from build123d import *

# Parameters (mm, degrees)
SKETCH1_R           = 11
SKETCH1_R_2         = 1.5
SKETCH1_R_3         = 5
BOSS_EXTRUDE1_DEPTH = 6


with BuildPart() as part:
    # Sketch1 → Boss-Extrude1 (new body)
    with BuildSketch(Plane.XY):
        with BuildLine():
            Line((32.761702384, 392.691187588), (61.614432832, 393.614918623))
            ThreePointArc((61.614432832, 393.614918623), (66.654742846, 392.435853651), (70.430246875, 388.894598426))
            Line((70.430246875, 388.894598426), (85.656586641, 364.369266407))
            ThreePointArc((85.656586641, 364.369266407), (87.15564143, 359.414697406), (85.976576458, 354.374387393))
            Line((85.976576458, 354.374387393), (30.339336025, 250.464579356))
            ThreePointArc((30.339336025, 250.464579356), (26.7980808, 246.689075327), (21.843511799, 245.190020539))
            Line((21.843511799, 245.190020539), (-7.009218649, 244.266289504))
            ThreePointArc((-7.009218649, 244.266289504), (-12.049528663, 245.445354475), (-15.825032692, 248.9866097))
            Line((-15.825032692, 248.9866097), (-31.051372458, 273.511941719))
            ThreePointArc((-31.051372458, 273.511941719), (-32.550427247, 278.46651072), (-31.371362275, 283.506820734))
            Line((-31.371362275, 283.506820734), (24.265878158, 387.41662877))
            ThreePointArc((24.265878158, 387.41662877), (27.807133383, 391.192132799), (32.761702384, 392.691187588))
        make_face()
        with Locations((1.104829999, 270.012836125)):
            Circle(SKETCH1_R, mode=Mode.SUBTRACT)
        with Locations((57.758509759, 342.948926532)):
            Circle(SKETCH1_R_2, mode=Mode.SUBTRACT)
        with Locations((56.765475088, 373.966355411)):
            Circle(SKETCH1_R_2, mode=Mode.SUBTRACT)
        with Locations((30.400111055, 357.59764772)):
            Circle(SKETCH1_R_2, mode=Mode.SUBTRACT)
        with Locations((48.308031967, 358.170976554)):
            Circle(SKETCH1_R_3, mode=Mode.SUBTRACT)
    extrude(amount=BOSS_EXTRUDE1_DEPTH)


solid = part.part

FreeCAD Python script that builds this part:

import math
import FreeCAD as App
import Part
import Sketcher
from FreeCAD import Vector
Q = App.Units.Quantity

doc = App.newDocument("Part")
params = doc.addObject("Spreadsheet::Sheet", "Params")
for row, (alias, value) in enumerate([
    ("sketch1_diameter", "22 mm"),
    ("sketch1_diameter2", "3 mm"),
    ("sketch1_diameter3", "10 mm"),
    ("sketch1_radius", "10 mm"),
    ("pad1_length", "6 mm"),
], start=1):
    params.set(f"A{row}", alias)
    params.set(f"B{row}", "=" + value)
    params.setAlias(f"B{row}", alias)

body = doc.addObject("PartDesign::Body", "Body")

# Sketch on XY plane
sketch1 = body.newObject("Sketcher::SketchObject", "Sketch")
sketch1.AttachmentSupport = (doc.getObject("XY_Plane"), [""])
sketch1.MapMode = "FlatFace"
sketch1.addGeometry([
    Part.LineSegment(Vector(61.6, 393.6, 0), Vector(32.8, 392.7, 0)),  # 0
    Part.ArcOfCircle(Part.Circle(Vector(33.1, 382.7, 0), Vector(0, 0, 1), 10), math.radians(92), math.radians(152)),  # 1
    Part.LineSegment(Vector(24.3, 387.4, 0), Vector(-31.4, 283.5, 0)),  # 2
    Part.ArcOfCircle(Part.Circle(Vector(-22.6, 278.8, 0), Vector(0, 0, 1), 10), math.radians(152), math.radians(212)),  # 3
    Part.LineSegment(Vector(-31.1, 273.5, 0), Vector(-15.8, 249, 0)),  # 4
    Part.ArcOfCircle(Part.Circle(Vector(-7.3, 254.3, 0), Vector(0, 0, 1), 10), math.radians(-148), math.radians(-88)),  # 5
    Part.LineSegment(Vector(-7, 244.3, 0), Vector(21.8, 245.2, 0)),  # 6
    Part.ArcOfCircle(Part.Circle(Vector(21.5, 255.2, 0), Vector(0, 0, 1), 10), math.radians(-88), math.radians(-28)),  # 7
    Part.LineSegment(Vector(30.3, 250.5, 0), Vector(86, 354.4, 0)),  # 8
    Part.ArcOfCircle(Part.Circle(Vector(77.2, 359.1, 0), Vector(0, 0, 1), 10), math.radians(-28), math.radians(32)),  # 9
    Part.LineSegment(Vector(85.7, 364.4, 0), Vector(70.4, 388.9, 0)),  # 10
    Part.ArcOfCircle(Part.Circle(Vector(61.9, 383.6, 0), Vector(0, 0, 1), 10), math.radians(32), math.radians(92)),  # 11
    Part.Circle(Vector(1.1, 270, 0), Vector(0, 0, 1), 11),  # 12
    Part.Circle(Vector(57.8, 342.9, 0), Vector(0, 0, 1), 1.5),  # 13
    Part.Circle(Vector(48.3, 358.2, 0), Vector(0, 0, 1), 5),  # 14
    Part.Circle(Vector(56.8, 374, 0), Vector(0, 0, 1), 1.5),  # 15
    Part.Circle(Vector(30.4, 357.6, 0), Vector(0, 0, 1), 1.5),  # 16
], False)
sketch1.addConstraint([
    Sketcher.Constraint("Tangent", 0, 2, 1, 1),
    Sketcher.Constraint("Tangent", 1, 2, 2, 1),
    Sketcher.Constraint("Tangent", 2, 2, 3, 1),
    Sketcher.Constraint("Tangent", 3, 2, 4, 1),
    Sketcher.Constraint("Tangent", 4, 2, 5, 1),
    Sketcher.Constraint("Tangent", 5, 2, 6, 1),
    Sketcher.Constraint("Tangent", 6, 2, 7, 1),
    Sketcher.Constraint("Tangent", 7, 2, 8, 1),
    Sketcher.Constraint("Tangent", 8, 2, 9, 1),
    Sketcher.Constraint("Tangent", 9, 2, 10, 1),
    Sketcher.Constraint("Tangent", 10, 2, 11, 1),
    Sketcher.Constraint("Tangent", 11, 2, 0, 1),
    Sketcher.Constraint("Equal", 1, 3),
    Sketcher.Constraint("Equal", 3, 5),
    Sketcher.Constraint("Equal", 5, 7),
    Sketcher.Constraint("Equal", 7, 9),
    Sketcher.Constraint("Equal", 9, 11),
    Sketcher.Constraint("Equal", 13, 15),
    Sketcher.Constraint("Equal", 15, 16),
    Sketcher.Constraint("Parallel", 0, 6),
    Sketcher.Constraint("Parallel", 2, 8),
    Sketcher.Constraint("Parallel", 4, 10),
    Sketcher.Constraint("Equal", 0, 4),
    Sketcher.Constraint("Equal", 4, 6),
    Sketcher.Constraint("Diameter", 12, Q("22 mm")),
    Sketcher.Constraint("Diameter", 13, Q("3 mm")),
    Sketcher.Constraint("Diameter", 14, Q("10 mm")),
    Sketcher.Constraint("Radius", 1, Q("10 mm")),
    Sketcher.Constraint("DistanceY", -1, 1, 3, 3, Q("278.786501 mm")),
    Sketcher.Constraint("DistanceY", -1, 1, 7, 3, Q("255.1849 mm")),
    Sketcher.Constraint("DistanceY", -1, 1, 10, 2, Q("388.894598 mm")),
    Sketcher.Constraint("DistanceX", 5, 3, 1, 3, Q("40.410901 mm")),
    Sketcher.Constraint("DistanceX", 12, 3, 14, 3, Q("47.203202 mm")),
    Sketcher.Constraint("DistanceX", 16, 3, 13, 3, Q("27.358399 mm")),
    Sketcher.Constraint("DistanceX", 15, 3, 8, 2, Q("29.211101 mm")),
    Sketcher.Constraint("DistanceY", -1, 1, 1, 3, Q("382.696309 mm")),
    Sketcher.Constraint("DistanceX", 3, 3, -1, 1, Q("22.555548 mm")),
    Sketcher.Constraint("DistanceX", 5, 3, -1, 1, Q("7.329208 mm")),
    Sketcher.Constraint("DistanceX", -1, 1, 12, 3, Q("1.10483 mm")),
    Sketcher.Constraint("DistanceX", -1, 1, 13, 3, Q("57.75851 mm")),
    Sketcher.Constraint("DistanceY", 12, 3, 9, 3, Q("89.081871 mm")),
    Sketcher.Constraint("DistanceY", 13, 3, 9, 3, Q("16.145781 mm")),
    Sketcher.Constraint("DistanceY", 13, 3, 14, 3, Q("15.22205 mm")),
    Sketcher.Constraint("DistanceY", 14, 3, 15, 3, Q("15.795379 mm")),
    Sketcher.Constraint("DistanceY", 16, 3, 14, 3, Q("0.573329 mm")),
])
sketch1.setExpression("Constraints[24]", "Params.sketch1_diameter")
sketch1.setExpression("Constraints[25]", "Params.sketch1_diameter2")
sketch1.setExpression("Constraints[26]", "Params.sketch1_diameter3")
sketch1.setExpression("Constraints[27]", "Params.sketch1_radius")
pad1 = body.newObject("PartDesign::Pad", "Pad")
pad1.Profile = sketch1
pad1.setExpression("Length", "Params.pad1_length")

doc.recompute()
